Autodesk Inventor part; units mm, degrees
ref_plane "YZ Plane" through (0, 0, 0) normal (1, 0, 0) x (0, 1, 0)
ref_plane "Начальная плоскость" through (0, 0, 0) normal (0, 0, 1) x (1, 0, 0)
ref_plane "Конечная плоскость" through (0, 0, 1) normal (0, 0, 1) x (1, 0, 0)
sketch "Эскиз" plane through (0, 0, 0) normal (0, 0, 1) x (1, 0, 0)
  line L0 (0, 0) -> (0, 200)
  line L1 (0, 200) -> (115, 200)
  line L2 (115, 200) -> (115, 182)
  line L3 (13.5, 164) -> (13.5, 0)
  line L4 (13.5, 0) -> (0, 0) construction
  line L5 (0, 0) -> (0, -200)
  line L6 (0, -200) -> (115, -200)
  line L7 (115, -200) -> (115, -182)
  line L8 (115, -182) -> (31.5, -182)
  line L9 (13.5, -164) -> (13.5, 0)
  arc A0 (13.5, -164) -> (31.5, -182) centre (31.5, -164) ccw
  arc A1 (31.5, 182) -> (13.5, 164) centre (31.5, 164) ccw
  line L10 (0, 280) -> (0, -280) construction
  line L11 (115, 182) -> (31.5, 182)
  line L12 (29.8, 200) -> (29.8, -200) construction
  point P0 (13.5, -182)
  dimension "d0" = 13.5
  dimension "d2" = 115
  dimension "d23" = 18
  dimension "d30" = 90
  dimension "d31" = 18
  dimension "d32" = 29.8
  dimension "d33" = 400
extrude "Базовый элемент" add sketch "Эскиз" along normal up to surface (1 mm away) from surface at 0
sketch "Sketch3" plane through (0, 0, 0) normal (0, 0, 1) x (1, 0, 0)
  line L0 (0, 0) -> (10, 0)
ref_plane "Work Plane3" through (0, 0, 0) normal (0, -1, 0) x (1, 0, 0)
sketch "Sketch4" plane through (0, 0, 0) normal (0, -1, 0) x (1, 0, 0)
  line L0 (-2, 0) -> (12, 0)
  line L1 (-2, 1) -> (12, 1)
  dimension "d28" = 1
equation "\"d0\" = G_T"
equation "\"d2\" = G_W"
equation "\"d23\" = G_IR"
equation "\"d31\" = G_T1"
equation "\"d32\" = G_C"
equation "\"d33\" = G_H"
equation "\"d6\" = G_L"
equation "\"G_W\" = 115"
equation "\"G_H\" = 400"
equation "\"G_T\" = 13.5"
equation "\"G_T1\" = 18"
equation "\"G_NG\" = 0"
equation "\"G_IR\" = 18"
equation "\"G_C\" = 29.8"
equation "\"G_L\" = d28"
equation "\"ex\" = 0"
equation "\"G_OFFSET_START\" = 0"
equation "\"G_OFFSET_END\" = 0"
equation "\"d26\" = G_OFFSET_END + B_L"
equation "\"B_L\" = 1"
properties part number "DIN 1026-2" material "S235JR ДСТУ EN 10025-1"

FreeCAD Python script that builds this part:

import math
import FreeCAD as App
import Part
import Sketcher

V = App.Vector

doc = App.newDocument("Part")
body = doc.addObject("PartDesign::Body", "Body")

# Sketch on XY plane
sketch1 = body.newObject("Sketcher::SketchObject", "Sketch")
sketch1.AttachmentSupport = (doc.getObject("XY_Plane"), [""])
sketch1.MapMode = "FlatFace"
sketch1.addGeometry([
    Part.LineSegment(V(0, 200, 0), V(0, -200, 0)),  # 0
    Part.LineSegment(V(0, -200, 0), V(115, -200, 0)),  # 1
    Part.LineSegment(V(115, -200, 0), V(115, -182, 0)),  # 2
    Part.LineSegment(V(115, -182, 0), V(31.5, -182, 0)),  # 3
    Part.ArcOfCircle(Part.Circle(V(31.5, -164, 0), V(0, 0, 1), 18), math.radians(180), math.radians(270)),  # 4
    Part.LineSegment(V(13.5, -164, 0), V(13.5, 164, 0)),  # 5
    Part.ArcOfCircle(Part.Circle(V(31.5, 164, 0), V(0, 0, 1), 18), math.radians(90), math.radians(180)),  # 6
    Part.LineSegment(V(31.5, 182, 0), V(115, 182, 0)),  # 7
    Part.LineSegment(V(115, 182, 0), V(115, 200, 0)),  # 8
    Part.LineSegment(V(115, 200, 0), V(0, 200, 0)),  # 9
], False)
sketch1.addConstraint([
    Sketcher.Constraint("Coincident", 0, 2, 1, 1),
    Sketcher.Constraint("Coincident", 1, 2, 2, 1),
    Sketcher.Constraint("Coincident", 2, 2, 3, 1),
    Sketcher.Constraint("Tangent", 3, 2, 4, 2),
    Sketcher.Constraint("Tangent", 4, 1, 5, 1),
    Sketcher.Constraint("Tangent", 5, 2, 6, 2),
    Sketcher.Constraint("Tangent", 6, 1, 7, 1),
    Sketcher.Constraint("Coincident", 7, 2, 8, 1),
    Sketcher.Constraint("Coincident", 8, 2, 9, 1),
    Sketcher.Constraint("Coincident", 9, 2, 0, 1),
    Sketcher.Constraint("Vertical", 0),
    Sketcher.Constraint("Horizontal", 1),
    Sketcher.Constraint("Vertical", 2),
    Sketcher.Constraint("Horizontal", 3),
    Sketcher.Constraint("Vertical", 5),
    Sketcher.Constraint("Horizontal", 7),
    Sketcher.Constraint("Vertical", 8),
    Sketcher.Constraint("Horizontal", 9),
    Sketcher.Constraint("Equal", 4, 6),
    Sketcher.Constraint("Symmetric", 0, 2, 9, 2, -1, 1),
    Sketcher.Constraint("Symmetric", 2, 2, 7, 2, -1),
    Sketcher.Constraint("Radius", 4, 18.0),
    Sketcher.Constraint("DistanceX", 1, 1, 1, 2, 115.0),
    Sketcher.Constraint("DistanceY", 0, 2, 0, 1, 400.0),
    Sketcher.Constraint("DistanceY", 2, 1, 2, 2, 18.0),
    Sketcher.Constraint("DistanceX", -1, 1, 4, 1, 13.5),
])
pad1 = body.newObject("PartDesign::Pad", "Pad")
pad1.Profile = sketch1
pad1.Length = 1

doc.recompute()
